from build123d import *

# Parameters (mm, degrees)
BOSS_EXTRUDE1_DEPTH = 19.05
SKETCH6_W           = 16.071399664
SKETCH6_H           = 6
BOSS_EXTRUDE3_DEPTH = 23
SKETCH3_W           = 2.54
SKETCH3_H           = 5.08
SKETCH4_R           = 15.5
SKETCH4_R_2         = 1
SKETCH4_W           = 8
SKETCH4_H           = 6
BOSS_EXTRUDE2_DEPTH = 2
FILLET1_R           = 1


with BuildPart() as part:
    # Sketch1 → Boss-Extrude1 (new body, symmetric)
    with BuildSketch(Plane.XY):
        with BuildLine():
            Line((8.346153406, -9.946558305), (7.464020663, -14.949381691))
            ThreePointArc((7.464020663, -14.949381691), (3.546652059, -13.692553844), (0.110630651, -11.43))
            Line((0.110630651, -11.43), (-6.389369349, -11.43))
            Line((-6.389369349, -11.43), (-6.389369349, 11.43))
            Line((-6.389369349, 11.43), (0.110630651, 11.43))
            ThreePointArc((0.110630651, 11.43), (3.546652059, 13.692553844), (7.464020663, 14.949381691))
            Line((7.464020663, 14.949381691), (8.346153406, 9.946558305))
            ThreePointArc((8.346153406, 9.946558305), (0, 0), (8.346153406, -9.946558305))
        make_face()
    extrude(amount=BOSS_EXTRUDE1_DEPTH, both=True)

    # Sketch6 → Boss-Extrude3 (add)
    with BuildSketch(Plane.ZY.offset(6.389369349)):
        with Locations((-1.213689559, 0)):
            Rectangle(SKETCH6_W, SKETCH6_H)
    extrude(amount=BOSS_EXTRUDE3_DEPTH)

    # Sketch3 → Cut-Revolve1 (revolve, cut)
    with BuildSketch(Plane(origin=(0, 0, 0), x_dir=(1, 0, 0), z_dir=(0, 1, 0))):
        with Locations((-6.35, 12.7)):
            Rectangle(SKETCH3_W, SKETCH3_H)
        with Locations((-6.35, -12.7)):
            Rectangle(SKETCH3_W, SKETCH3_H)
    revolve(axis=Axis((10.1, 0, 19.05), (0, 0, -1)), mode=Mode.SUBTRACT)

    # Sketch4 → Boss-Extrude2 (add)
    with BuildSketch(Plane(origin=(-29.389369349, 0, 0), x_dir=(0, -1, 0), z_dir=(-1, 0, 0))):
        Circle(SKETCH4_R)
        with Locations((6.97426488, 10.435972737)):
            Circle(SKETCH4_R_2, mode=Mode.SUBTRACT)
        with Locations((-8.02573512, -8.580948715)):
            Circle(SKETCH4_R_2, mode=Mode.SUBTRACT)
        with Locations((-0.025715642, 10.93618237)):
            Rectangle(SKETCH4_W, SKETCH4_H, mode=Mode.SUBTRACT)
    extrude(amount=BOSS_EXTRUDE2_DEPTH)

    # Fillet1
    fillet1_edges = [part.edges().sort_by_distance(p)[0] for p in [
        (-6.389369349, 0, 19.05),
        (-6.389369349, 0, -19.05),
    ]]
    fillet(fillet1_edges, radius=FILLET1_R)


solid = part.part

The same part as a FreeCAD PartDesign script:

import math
import FreeCAD as App
import Part
import Sketcher
Q = App.Units.Quantity


def edges_at(feature, points):
    """Names of the edges that pass closest to the given points."""
    edges = feature.Shape.Edges
    near = lambda p: min(range(len(edges)), key=lambda i: edges[i].distToShape(Part.Vertex(*p))[0])
    return sorted({f"Edge{near(p) + 1}" for p in points})


def add_polygon(sketch, points):
    """Adds a closed chain of lines whose ends are joined by coincident constraints."""
    first, n = sketch.GeometryCount, len(points)
    for a, b in zip(points, points[1:] + points[:1]):
        sketch.addGeometry(Part.LineSegment(App.Vector(*a, 0), App.Vector(*b, 0)), False)
    for i in range(n):
        sketch.addConstraint(Sketcher.Constraint("Coincident", first + i, 2, first + (i + 1) % n, 1))

doc = App.newDocument("Part")
body = doc.addObject("PartDesign::Body", "Body")

# Sketch on XY plane
sketch1 = doc.addObject("Sketcher::SketchObject", "Sketch")
body.addObject(sketch1)
sketch1.AttachmentSupport = (doc.XY_Plane, [""])
sketch1.MapMode = "FlatFace"
sketch1.addGeometry([
    Part.LineSegment(App.Vector(7.464021, -14.949382, 0), App.Vector(8.346153, -9.946558, 0)),  # 0
    Part.ArcOfCircle(Part.Circle(App.Vector(10.1, 0, 0), App.Vector(0, 0, 1), 10.1), math.radians(100), math.radians(260)),  # 1
    Part.LineSegment(App.Vector(8.346153, 9.946558, 0), App.Vector(7.464021, 14.949382, 0)),  # 2
    Part.ArcOfCircle(Part.Circle(App.Vector(10.1, 0, 0), App.Vector(0, 0, 1), 15.18), math.radians(100), math.radians(131.152178)),  # 3
    Part.LineSegment(App.Vector(0.110631, 11.43, 0), App.Vector(-6.389369, 11.43, 0)),  # 4
    Part.LineSegment(App.Vector(-6.389369, 11.43, 0), App.Vector(-6.389369, -11.43, 0)),  # 5
    Part.LineSegment(App.Vector(-6.389369, -11.43, 0), App.Vector(0.110631, -11.43, 0)),  # 6
    Part.ArcOfCircle(Part.Circle(App.Vector(10.1, 0, 0), App.Vector(0, 0, 1), 15.18), math.radians(-131.152178), math.radians(-100)),  # 7
], False)
sketch1.addConstraint([
    Sketcher.Constraint("Coincident", 0, 2, 1, 2),
    Sketcher.Constraint("Coincident", 1, 1, 2, 1),
    Sketcher.Constraint("Coincident", 2, 2, 3, 1),
    Sketcher.Constraint("Coincident", 3, 2, 4, 1),
    Sketcher.Constraint("Coincident", 4, 2, 5, 1),
    Sketcher.Constraint("Coincident", 5, 2, 6, 1),
    Sketcher.Constraint("Coincident", 6, 2, 7, 1),
    Sketcher.Constraint("Coincident", 7, 2, 0, 1),
    Sketcher.Constraint("Horizontal", 4),
    Sketcher.Constraint("Vertical", 5),
    Sketcher.Constraint("Horizontal", 6),
    Sketcher.Constraint("Coincident", 3, 3, 1, 3),
    Sketcher.Constraint("Coincident", 7, 3, 1, 3),
    Sketcher.Constraint("Equal", 3, 7),
    Sketcher.Constraint("Symmetric", 0, 2, 1, 1, -1),
    Sketcher.Constraint("Vertical", 3, 2, 6, 2),
    Sketcher.Constraint("Vertical", 2, 2, 7, 2),
    Sketcher.Constraint("Radius", 1, Q("10.1 mm")),
    Sketcher.Constraint("Angle", 0, Q("80 deg")),
    Sketcher.Constraint("Radius", 3, Q("15.18 mm")),
    Sketcher.Constraint("DistanceX", 4, 2, 4, 1, Q("6.5 mm")),
    Sketcher.Constraint("DistanceY", 5, 2, 5, 1, Q("22.86 mm")),
    Sketcher.Constraint("DistanceX", -1, 1, 1, 3, Q("10.1 mm")),
    Sketcher.Constraint("DistanceY", 0, 2, -1, 1, Q("9.946558 mm")),
])
pad1 = doc.addObject("PartDesign::Pad", "Pad")
body.addObject(pad1)
pad1.Profile = sketch1
pad1.Length = 38.1
pad1.Midplane = True

# Sketch on YZ plane
sketch2 = doc.addObject("Sketcher::SketchObject", "Sketch001")
body.addObject(sketch2)
sketch2.AttachmentSupport = (doc.YZ_Plane, [""])
sketch2.MapMode = "FlatFace"
sketch2.AttachmentOffset = App.Placement(App.Vector(0, 0, -6.389369), App.Rotation())
add_polygon(sketch2, [(3, -9.249389), (-3, -9.249389), (-3, 6.82201), (3, 6.82201)])  # lines 0-3
sketch2.addConstraint([
    Sketcher.Constraint("Horizontal", 0),
    Sketcher.Constraint("Vertical", 1),
    Sketcher.Constraint("Horizontal", 2),
    Sketcher.Constraint("Vertical", 3),
    Sketcher.Constraint("DistanceX", 0, 2, 0, 1, Q("6 mm")),
    Sketcher.Constraint("DistanceX", 0, 2, -1, 1, Q("3 mm")),
    Sketcher.Constraint("DistanceY", 1, 1, 1, 2, Q("16.0714 mm")),
    Sketcher.Constraint("DistanceY", 0, 2, -1, 1, Q("9.249389 mm")),
])
pad2 = doc.addObject("PartDesign::Pad", "Pad001")
body.addObject(pad2)
pad2.Profile = sketch2
pad2.Length = 23
pad2.Reversed = True

# Sketch on XZ plane
sketch3 = doc.addObject("Sketcher::SketchObject", "Sketch002")
body.addObject(sketch3)
sketch3.AttachmentSupport = (doc.XZ_Plane, [""])
sketch3.MapMode = "FlatFace"
add_polygon(sketch3, [(-7.62, -15.24), (-7.62, -10.16), (-5.08, -10.16), (-5.08, -15.24)])  # lines 0-3
add_polygon(sketch3, [(-7.62, 10.16), (-7.62, 15.24), (-5.08, 15.24), (-5.08, 10.16)])  # lines 4-7
sketch3.addGeometry(Part.LineSegment(App.Vector(10.1, 15.24, 0), App.Vector(10.1, -15.24, 0)), True)  # axis
sketch3.addConstraint([
    Sketcher.Constraint("Vertical", 0),
    Sketcher.Constraint("Horizontal", 1),
    Sketcher.Constraint("Vertical", 2),
    Sketcher.Constraint("Horizontal", 3),
    Sketcher.Constraint("Vertical", 4),
    Sketcher.Constraint("Horizontal", 5),
    Sketcher.Constraint("Vertical", 6),
    Sketcher.Constraint("Horizontal", 7),
    Sketcher.Constraint("Vertical", 8),
    Sketcher.Constraint("Symmetric", 3, 2, 4, 2, -1),
    Sketcher.Constraint("Symmetric", 1, 2, 6, 2, -1),
    Sketcher.Constraint("Horizontal", 5, 2, 8, 1),
    Sketcher.Constraint("Horizontal", 3, 2, 8, 2),
    Sketcher.Constraint("DistanceX", 1, 1, 1, 2, Q("2.54 mm")),
    Sketcher.Constraint("DistanceY", 0, 1, 0, 2, Q("5.08 mm")),
    Sketcher.Constraint("DistanceY", 8, 2, 8, 1, Q("30.48 mm")),
    Sketcher.Constraint("DistanceX", -1, 1, 8, 1, Q("10.1 mm")),
    Sketcher.Constraint("DistanceX", 0, 2, -1, 1, Q("7.62 mm")),
])
groove = doc.addObject("PartDesign::Groove", "Groove")
body.addObject(groove)
groove.Profile = sketch3
groove.ReferenceAxis = (sketch3, ["Axis0"])
groove.Angle = 360

# Sketch on YZ plane
sketch4 = doc.addObject("Sketcher::SketchObject", "Sketch003")
body.addObject(sketch4)
sketch4.AttachmentSupport = (doc.YZ_Plane, [""])
sketch4.MapMode = "FlatFace"
sketch4.AttachmentOffset = App.Placement(App.Vector(0, 0, -29.389369), App.Rotation())
sketch4.addGeometry(Part.Circle(App.Vector(0, 0, 0), App.Vector(0, 0, 1), 15.5), False)  # 0
sketch4.addGeometry(Part.Circle(App.Vector(8.025735, -8.580949, 0), App.Vector(0, 0, 1), 1), False)  # 1
add_polygon(sketch4, [(-3.974284, 7.936182), (4.025716, 7.936182), (4.025716, 13.936182), (-3.974284, 13.936182)])  # lines 2-5
sketch4.addGeometry(Part.Circle(App.Vector(-6.974265, 10.435973, 0), App.Vector(0, 0, 1), 1), False)  # 6
sketch4.addConstraint([
    Sketcher.Constraint("Horizontal", 2),
    Sketcher.Constraint("Vertical", 3),
    Sketcher.Constraint("Horizontal", 4),
    Sketcher.Constraint("Vertical", 5),
    Sketcher.Constraint("Coincident", 0, 3, -1, 1),
    Sketcher.Constraint("Equal", 1, 6),
    Sketcher.Constraint("Diameter", 0, Q("31 mm")),
    Sketcher.Constraint("Diameter", 1, Q("2 mm")),
    Sketcher.Constraint("DistanceX", 2, 1, 2, 2, Q("8 mm")),
    Sketcher.Constraint("DistanceY", 3, 1, 3, 2, Q("6 mm")),
    Sketcher.Constraint("DistanceX", 6, 3, 1, 3, Q("15 mm")),
    Sketcher.Constraint("DistanceY", 1, 3, -1, 1, Q("8.580949 mm")),
    Sketcher.Constraint("DistanceY", 1, 3, 6, 3, Q("19.016921 mm")),
    Sketcher.Constraint("DistanceX", 6, 3, 2, 2, Q("10.999981 mm")),
    Sketcher.Constraint("DistanceY", 2, 2, 6, 3, Q("2.49979 mm")),
    Sketcher.Constraint("DistanceX", -1, 1, 1, 3, Q("8.025735 mm")),
])
pad3 = doc.addObject("PartDesign::Pad", "Pad002")
body.addObject(pad3)
pad3.Profile = sketch4
pad3.Length = 2
pad3.Reversed = True
doc.recompute()

fillet = doc.addObject("PartDesign::Fillet", "Fillet")
body.addObject(fillet)
fillet.Base = (pad3, edges_at(pad3, [(-6.389, 0, 19.05), (-6.389, 0, -19.05)]))
fillet.Radius = 1

doc.recompute()
